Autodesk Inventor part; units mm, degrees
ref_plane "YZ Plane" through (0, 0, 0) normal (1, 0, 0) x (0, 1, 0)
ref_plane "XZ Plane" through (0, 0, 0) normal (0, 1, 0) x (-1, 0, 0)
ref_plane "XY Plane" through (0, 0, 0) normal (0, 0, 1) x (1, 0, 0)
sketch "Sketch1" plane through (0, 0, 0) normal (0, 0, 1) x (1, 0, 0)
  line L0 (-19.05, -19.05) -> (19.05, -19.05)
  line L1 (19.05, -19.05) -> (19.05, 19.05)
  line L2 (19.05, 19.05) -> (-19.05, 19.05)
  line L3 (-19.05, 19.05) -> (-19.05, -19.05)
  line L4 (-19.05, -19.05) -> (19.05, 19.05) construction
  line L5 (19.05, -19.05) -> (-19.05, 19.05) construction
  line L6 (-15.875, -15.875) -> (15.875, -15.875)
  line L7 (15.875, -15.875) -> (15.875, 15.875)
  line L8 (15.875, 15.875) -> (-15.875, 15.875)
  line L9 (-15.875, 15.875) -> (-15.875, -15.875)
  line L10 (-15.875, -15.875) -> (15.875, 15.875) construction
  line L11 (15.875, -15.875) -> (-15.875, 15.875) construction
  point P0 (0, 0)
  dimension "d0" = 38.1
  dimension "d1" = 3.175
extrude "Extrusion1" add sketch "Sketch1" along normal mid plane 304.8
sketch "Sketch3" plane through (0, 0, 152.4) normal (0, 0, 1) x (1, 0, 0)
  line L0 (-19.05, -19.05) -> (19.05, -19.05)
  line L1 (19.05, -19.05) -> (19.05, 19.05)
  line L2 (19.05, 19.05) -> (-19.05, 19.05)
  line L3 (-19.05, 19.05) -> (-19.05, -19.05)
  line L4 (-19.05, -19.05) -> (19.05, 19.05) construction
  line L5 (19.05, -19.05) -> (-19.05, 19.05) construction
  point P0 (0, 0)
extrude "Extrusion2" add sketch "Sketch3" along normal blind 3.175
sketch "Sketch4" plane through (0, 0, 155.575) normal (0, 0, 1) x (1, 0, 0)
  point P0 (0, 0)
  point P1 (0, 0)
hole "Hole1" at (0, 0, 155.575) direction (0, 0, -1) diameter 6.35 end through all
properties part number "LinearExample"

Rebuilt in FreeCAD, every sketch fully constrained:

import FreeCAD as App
import Part
import Sketcher

V = App.Vector
Q = App.Units.Quantity

doc = App.newDocument("Part")
body = doc.addObject("PartDesign::Body", "Body")

# Sketch on XY plane
sketch1 = body.newObject("Sketcher::SketchObject", "Sketch")
sketch1.AttachmentSupport = (doc.getObject("XY_Plane"), [""])
sketch1.MapMode = "FlatFace"
sketch1.addGeometry(Part.LineSegment(V(-19, 19, 0), V(-19, -19, 0)), False)
sketch1.addGeometry(Part.LineSegment(V(-19, -19, 0), V(19, -19, 0)), False)
sketch1.addGeometry(Part.LineSegment(V(19, -19, 0), V(19, 19, 0)), False)
sketch1.addGeometry(Part.LineSegment(V(19, 19, 0), V(-19, 19, 0)), False)
sketch1.addGeometry(Part.LineSegment(V(16, -16, 0), V(-16, -16, 0)), False)
sketch1.addGeometry(Part.LineSegment(V(-16, -16, 0), V(-16, 16, 0)), False)
sketch1.addGeometry(Part.LineSegment(V(-16, 16, 0), V(16, 16, 0)), False)
sketch1.addGeometry(Part.LineSegment(V(16, 16, 0), V(16, -16, 0)), False)
sketch1.addConstraint(Sketcher.Constraint("Coincident", 0, 2, 1, 1))
sketch1.addConstraint(Sketcher.Constraint("Coincident", 1, 2, 2, 1))
sketch1.addConstraint(Sketcher.Constraint("Coincident", 2, 2, 3, 1))
sketch1.addConstraint(Sketcher.Constraint("Coincident", 3, 2, 0, 1))
sketch1.addConstraint(Sketcher.Constraint("Coincident", 4, 2, 5, 1))
sketch1.addConstraint(Sketcher.Constraint("Coincident", 5, 2, 6, 1))
sketch1.addConstraint(Sketcher.Constraint("Coincident", 6, 2, 7, 1))
sketch1.addConstraint(Sketcher.Constraint("Coincident", 7, 2, 4, 1))
sketch1.addConstraint(Sketcher.Constraint("Vertical", 0))
sketch1.addConstraint(Sketcher.Constraint("Horizontal", 1))
sketch1.addConstraint(Sketcher.Constraint("Vertical", 2))
sketch1.addConstraint(Sketcher.Constraint("Horizontal", 3))
sketch1.addConstraint(Sketcher.Constraint("Horizontal", 4))
sketch1.addConstraint(Sketcher.Constraint("Vertical", 5))
sketch1.addConstraint(Sketcher.Constraint("Horizontal", 6))
sketch1.addConstraint(Sketcher.Constraint("Vertical", 7))
sketch1.addConstraint(Sketcher.Constraint("Symmetric", 0, 2, 2, 2, -1, 1))
sketch1.addConstraint(Sketcher.Constraint("Symmetric", 4, 2, 6, 2, -1, 1))
sketch1.addConstraint(Sketcher.Constraint("Equal", 3, 0))
sketch1.addConstraint(Sketcher.Constraint("Equal", 6, 5))
sketch1.addConstraint(Sketcher.Constraint("DistanceX", 1, 1, 1, 2, Q("1.5 in")))
sketch1.addConstraint(Sketcher.Constraint("DistanceX", 0, 2, 4, 2, Q("0.125 in")))
pad1 = body.newObject("PartDesign::Pad", "Pad")
pad1.Profile = sketch1
pad1.Length = Q("12 in")
pad1.Midplane = True

# Sketch on XY plane
sketch2 = body.newObject("Sketcher::SketchObject", "Sketch001")
sketch2.AttachmentSupport = (doc.getObject("XY_Plane"), [""])
sketch2.MapMode = "FlatFace"
sketch2.AttachmentOffset = App.Placement(V(0, 0, 6 * 25.4), App.Rotation())
sketch2.addGeometry(Part.LineSegment(V(-19, 19, 0), V(-19, -19, 0)), False)
sketch2.addGeometry(Part.LineSegment(V(-19, -19, 0), V(19, -19, 0)), False)
sketch2.addGeometry(Part.LineSegment(V(19, -19, 0), V(19, 19, 0)), False)
sketch2.addGeometry(Part.LineSegment(V(19, 19, 0), V(-19, 19, 0)), False)
sketch2.addConstraint(Sketcher.Constraint("Coincident", 0, 2, 1, 1))
sketch2.addConstraint(Sketcher.Constraint("Coincident", 1, 2, 2, 1))
sketch2.addConstraint(Sketcher.Constraint("Coincident", 2, 2, 3, 1))
sketch2.addConstraint(Sketcher.Constraint("Coincident", 3, 2, 0, 1))
sketch2.addConstraint(Sketcher.Constraint("Vertical", 0))
sketch2.addConstraint(Sketcher.Constraint("Horizontal", 1))
sketch2.addConstraint(Sketcher.Constraint("Vertical", 2))
sketch2.addConstraint(Sketcher.Constraint("Horizontal", 3))
sketch2.addConstraint(Sketcher.Constraint("Symmetric", 0, 2, 2, 2, -1, 1))
sketch2.addConstraint(Sketcher.Constraint("Equal", 3, 0))
sketch2.addConstraint(Sketcher.Constraint("DistanceX", 1, 1, 1, 2, Q("1.5 in")))
pad2 = body.newObject("PartDesign::Pad", "Pad001")
pad2.Profile = sketch2
pad2.Length = Q("0.125 in")

# Sketch on XY plane
sketch3 = body.newObject("Sketcher::SketchObject", "Sketch002")
sketch3.AttachmentSupport = (doc.getObject("XY_Plane"), [""])
sketch3.MapMode = "FlatFace"
sketch3.AttachmentOffset = App.Placement(V(0, 0, 6.125 * 25.4), App.Rotation())
sketch3.addGeometry(Part.Circle(V(0, 0, 0), V(0, 0, 1), 3.2), False)
sketch3.addConstraint(Sketcher.Constraint("Coincident", 0, 3, -1, 1))
sketch3.addConstraint(Sketcher.Constraint("Diameter", 0, Q("0.25 in")))
doc.recompute()
hole = body.newObject("PartDesign::Hole", "Hole")
hole.Profile = sketch3
hole.ThreadType = "None"
hole.Diameter = Q("0.25 in")
hole.DepthType = "ThroughAll"

doc.recompute()
